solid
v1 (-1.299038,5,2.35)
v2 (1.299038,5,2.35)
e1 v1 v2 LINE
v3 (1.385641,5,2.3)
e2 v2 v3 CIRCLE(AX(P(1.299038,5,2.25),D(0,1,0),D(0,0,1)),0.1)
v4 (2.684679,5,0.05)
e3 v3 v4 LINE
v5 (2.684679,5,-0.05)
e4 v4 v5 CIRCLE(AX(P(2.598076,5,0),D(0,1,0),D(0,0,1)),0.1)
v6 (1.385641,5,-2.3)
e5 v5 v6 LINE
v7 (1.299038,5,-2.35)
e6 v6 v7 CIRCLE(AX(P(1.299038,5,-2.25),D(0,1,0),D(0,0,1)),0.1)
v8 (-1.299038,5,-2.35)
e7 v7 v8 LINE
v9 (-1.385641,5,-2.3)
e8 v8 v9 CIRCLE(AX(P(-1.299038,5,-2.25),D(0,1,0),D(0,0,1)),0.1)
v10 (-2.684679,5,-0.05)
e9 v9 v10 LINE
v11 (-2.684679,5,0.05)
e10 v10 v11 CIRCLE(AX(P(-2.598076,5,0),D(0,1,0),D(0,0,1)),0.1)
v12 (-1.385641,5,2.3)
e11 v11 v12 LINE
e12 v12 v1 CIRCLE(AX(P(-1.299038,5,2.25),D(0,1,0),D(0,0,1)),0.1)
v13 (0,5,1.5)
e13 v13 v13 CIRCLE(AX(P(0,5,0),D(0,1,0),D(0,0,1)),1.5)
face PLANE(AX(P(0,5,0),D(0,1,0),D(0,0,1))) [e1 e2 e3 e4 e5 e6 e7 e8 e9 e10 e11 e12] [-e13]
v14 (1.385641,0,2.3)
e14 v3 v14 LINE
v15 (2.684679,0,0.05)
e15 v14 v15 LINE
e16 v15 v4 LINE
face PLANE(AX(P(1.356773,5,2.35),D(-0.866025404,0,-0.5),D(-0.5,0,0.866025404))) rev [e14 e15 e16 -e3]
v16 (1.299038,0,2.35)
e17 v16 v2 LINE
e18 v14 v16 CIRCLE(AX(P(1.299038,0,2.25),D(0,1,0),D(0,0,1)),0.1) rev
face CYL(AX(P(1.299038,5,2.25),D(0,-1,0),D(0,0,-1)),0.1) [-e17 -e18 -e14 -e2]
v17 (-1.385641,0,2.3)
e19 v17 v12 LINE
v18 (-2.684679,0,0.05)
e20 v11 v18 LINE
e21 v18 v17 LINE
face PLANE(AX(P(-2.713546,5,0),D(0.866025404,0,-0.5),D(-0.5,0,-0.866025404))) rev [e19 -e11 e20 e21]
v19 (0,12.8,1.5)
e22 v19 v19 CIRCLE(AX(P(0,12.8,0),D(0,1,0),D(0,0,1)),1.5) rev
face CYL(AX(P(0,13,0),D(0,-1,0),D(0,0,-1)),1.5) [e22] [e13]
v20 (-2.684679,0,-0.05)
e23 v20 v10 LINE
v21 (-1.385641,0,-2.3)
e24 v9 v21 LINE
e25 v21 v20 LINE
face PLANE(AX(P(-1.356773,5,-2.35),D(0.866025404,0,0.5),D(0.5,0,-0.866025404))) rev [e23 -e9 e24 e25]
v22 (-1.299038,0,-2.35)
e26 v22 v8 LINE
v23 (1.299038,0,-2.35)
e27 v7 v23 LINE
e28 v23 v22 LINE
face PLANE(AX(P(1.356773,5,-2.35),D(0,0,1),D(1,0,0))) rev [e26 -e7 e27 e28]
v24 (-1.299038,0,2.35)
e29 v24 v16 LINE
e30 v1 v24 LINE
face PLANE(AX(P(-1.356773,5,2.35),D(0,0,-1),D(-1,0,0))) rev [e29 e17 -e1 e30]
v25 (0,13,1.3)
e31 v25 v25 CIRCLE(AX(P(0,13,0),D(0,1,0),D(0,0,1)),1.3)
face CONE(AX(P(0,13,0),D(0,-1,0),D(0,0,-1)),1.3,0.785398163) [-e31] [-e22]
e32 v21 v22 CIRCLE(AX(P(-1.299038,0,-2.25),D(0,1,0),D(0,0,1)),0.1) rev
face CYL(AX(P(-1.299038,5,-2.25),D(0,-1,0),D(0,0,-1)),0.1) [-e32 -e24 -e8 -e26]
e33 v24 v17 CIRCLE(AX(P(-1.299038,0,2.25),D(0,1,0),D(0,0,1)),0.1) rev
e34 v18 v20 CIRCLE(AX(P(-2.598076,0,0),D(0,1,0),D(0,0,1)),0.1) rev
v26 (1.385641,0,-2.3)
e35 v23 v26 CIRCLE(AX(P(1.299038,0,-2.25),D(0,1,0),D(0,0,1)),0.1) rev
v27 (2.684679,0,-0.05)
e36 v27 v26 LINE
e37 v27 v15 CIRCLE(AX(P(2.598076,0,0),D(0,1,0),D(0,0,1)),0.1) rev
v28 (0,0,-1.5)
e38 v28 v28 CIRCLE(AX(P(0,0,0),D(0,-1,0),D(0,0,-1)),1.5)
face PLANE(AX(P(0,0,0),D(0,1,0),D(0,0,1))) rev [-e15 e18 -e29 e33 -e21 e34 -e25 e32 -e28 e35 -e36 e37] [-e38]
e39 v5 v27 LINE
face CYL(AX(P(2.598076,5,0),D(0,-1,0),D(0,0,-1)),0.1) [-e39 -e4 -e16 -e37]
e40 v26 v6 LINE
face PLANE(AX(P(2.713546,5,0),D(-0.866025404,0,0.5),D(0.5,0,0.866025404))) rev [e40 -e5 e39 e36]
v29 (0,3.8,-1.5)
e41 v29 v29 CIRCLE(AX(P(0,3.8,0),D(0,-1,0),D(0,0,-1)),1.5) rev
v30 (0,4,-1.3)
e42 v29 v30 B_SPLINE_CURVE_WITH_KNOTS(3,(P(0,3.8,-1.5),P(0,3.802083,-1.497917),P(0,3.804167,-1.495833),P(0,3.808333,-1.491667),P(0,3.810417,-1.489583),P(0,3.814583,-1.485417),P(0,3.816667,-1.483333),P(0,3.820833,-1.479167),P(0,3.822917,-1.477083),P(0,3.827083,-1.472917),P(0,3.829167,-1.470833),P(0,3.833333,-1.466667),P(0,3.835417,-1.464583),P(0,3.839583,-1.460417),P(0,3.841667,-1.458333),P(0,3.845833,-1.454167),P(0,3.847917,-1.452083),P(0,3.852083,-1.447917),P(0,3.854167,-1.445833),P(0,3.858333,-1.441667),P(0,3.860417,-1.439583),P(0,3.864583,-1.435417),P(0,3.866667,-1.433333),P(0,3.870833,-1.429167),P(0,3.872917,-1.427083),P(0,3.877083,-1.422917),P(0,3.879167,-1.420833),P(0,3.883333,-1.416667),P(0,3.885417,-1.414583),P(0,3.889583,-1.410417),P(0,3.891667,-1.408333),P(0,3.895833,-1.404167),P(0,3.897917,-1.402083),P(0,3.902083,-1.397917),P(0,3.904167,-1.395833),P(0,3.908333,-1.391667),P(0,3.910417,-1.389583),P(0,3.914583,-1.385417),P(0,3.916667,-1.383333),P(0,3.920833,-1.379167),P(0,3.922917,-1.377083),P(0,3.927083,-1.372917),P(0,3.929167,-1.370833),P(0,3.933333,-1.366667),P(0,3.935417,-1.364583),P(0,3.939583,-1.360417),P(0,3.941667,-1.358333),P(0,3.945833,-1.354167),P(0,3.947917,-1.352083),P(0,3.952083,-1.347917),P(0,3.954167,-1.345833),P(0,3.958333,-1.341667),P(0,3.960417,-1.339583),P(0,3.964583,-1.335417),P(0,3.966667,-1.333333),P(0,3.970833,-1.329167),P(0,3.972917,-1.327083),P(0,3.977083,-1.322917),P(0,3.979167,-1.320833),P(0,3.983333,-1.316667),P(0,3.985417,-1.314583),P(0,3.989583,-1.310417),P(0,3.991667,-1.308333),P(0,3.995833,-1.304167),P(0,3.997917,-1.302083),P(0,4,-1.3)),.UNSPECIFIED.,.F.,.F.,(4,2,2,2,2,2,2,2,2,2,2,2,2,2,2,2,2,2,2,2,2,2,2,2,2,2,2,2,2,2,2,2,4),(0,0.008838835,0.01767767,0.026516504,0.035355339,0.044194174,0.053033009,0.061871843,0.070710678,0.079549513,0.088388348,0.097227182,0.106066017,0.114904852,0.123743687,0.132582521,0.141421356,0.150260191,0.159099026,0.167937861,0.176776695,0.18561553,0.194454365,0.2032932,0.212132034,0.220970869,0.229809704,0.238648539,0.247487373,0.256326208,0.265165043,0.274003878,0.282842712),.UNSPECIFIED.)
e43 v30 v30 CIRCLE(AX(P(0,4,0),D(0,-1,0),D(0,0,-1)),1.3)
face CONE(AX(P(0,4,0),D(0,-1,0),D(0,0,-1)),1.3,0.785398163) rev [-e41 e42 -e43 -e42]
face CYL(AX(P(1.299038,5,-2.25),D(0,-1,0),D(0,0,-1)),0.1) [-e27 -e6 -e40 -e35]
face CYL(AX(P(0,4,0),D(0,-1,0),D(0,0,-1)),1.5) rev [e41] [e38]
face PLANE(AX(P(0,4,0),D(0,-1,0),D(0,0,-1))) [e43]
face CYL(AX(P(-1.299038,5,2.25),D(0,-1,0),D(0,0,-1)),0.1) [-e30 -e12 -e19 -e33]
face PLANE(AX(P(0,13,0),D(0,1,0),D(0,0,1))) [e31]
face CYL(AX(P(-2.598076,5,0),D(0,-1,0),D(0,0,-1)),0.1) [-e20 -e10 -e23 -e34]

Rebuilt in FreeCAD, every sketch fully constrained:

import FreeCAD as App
import Part
import Sketcher
from FreeCAD import Vector
Q = App.Units.Quantity


def edges_at(feature, points):
    """Names of the edges that pass closest to the given points."""
    edges = feature.Shape.Edges
    near = lambda p: min(range(len(edges)), key=lambda i: edges[i].distToShape(Part.Vertex(*p))[0])
    return sorted({f"Edge{near(p) + 1}" for p in points})


def add_polygon(sketch, points):
    """Adds a closed chain of lines whose ends are joined by coincident constraints."""
    first, n = sketch.GeometryCount, len(points)
    for a, b in zip(points, points[1:] + points[:1]):
        sketch.addGeometry(Part.LineSegment(App.Vector(*a, 0), App.Vector(*b, 0)), False)
    for i in range(n):
        sketch.addConstraint(Sketcher.Constraint("Coincident", first + i, 2, first + (i + 1) % n, 1))

doc = App.newDocument("Part")
params = doc.addObject("Spreadsheet::Sheet", "Params")
for row, (alias, value) in enumerate([
    ("pad1_length", "5 mm"),
    ("sketch2_diameter", "3 mm"),
    ("pad2_length", "8 mm"),
    ("sketch3_diameter", "3 mm"),
    ("pocket1_length", "4 mm"),
    ("chamfer_size", "0.2 mm"),
    ("fillet_radius", "0.1 mm"),
], start=1):
    params.set(f"A{row}", alias)
    params.set(f"B{row}", "=" + value)
    params.setAlias(f"B{row}", alias)

body = doc.addObject("PartDesign::Body", "Body")

# Sketch on XZ plane
sketch1 = body.newObject("Sketcher::SketchObject", "Sketch")
sketch1.AttachmentSupport = (doc.getObject("XZ_Plane"), [""])
sketch1.MapMode = "FlatFace"
add_polygon(sketch1, [(2.7, 0), (1.4, -2.4), (-1.4, -2.4), (-2.7, 0), (-1.4, 2.4), (1.4, 2.4)])  # lines 0-5
sketch1.addConstraint([
    Sketcher.Constraint("Horizontal", 1),
    Sketcher.Constraint("Horizontal", 4),
    Sketcher.Constraint("Symmetric", 0, 2, 3, 2, -1, 1),
    Sketcher.Constraint("Symmetric", 2, 2, 5, 2, -1, 1),
    Sketcher.Constraint("PointOnObject", 2, 2, -1),
    Sketcher.Constraint("Parallel", 2, 5),
    Sketcher.Constraint("Vertical", 1, 2, 3, 2),
    Sketcher.Constraint("Angle", 0, Q("-120 deg")),
    Sketcher.Constraint("DistanceY", 1, 2, 3, 2, Q("4.7 mm")),
    Sketcher.Constraint("DistanceX", 1, 2, 1, 1, Q("2.713546 mm")),
])
pad1 = body.newObject("PartDesign::Pad", "Pad")
pad1.Profile = sketch1
pad1.setExpression("Length", "Params.pad1_length")
pad1.Reversed = True

# Sketch on XZ plane
sketch2 = body.newObject("Sketcher::SketchObject", "Sketch001")
sketch2.AttachmentSupport = (doc.getObject("XZ_Plane"), [""])
sketch2.MapMode = "FlatFace"
sketch2.AttachmentOffset = App.Placement(Vector(0, 0, -5), App.Rotation())
sketch2.addGeometry(Part.Circle(Vector(0, 0, 0), Vector(0, 0, 1), 1.5), False)
sketch2.addConstraint([
    Sketcher.Constraint("Coincident", 0, 3, -1, 1),
    Sketcher.Constraint("Diameter", 0, Q("3 mm")),
])
sketch2.setExpression("Constraints[1]", "Params.sketch2_diameter")
pad2 = body.newObject("PartDesign::Pad", "Pad001")
pad2.Profile = sketch2
pad2.setExpression("Length", "Params.pad2_length")
pad2.Reversed = True

# Sketch on XZ plane
sketch3 = body.newObject("Sketcher::SketchObject", "Sketch002")
sketch3.AttachmentSupport = (doc.getObject("XZ_Plane"), [""])
sketch3.MapMode = "FlatFace"
sketch3.addGeometry(Part.Circle(Vector(0, 0, 0), Vector(0, 0, 1), 1.5), False)
sketch3.addConstraint([
    Sketcher.Constraint("Coincident", 0, 3, -1, 1),
    Sketcher.Constraint("Diameter", 0, Q("3 mm")),
])
sketch3.setExpression("Constraints[1]", "Params.sketch3_diameter")
pocket1 = body.newObject("PartDesign::Pocket", "Pocket")
pocket1.Profile = sketch3
pocket1.setExpression("Length", "Params.pocket1_length")
doc.recompute()

chamfer = body.newObject("PartDesign::Chamfer", "Chamfer")
chamfer.Base = (pocket1, edges_at(pocket1, [(0, 13, -1.5), (0, 4, -1.5)]))
chamfer.setExpression("Size", "Params.chamfer_size")
doc.recompute()

fillet = body.newObject("PartDesign::Fillet", "Fillet")
fillet.Base = (chamfer, edges_at(chamfer, [
    (1.357, 2.5, 2.35),
    (-1.357, 2.5, 2.35),
    (-2.714, 2.5, 0),
    (-1.357, 2.5, -2.35),
    (1.357, 2.5, -2.35),
    (2.714, 2.5, 0),
]))
fillet.setExpression("Radius", "Params.fillet_radius")

doc.recompute()
